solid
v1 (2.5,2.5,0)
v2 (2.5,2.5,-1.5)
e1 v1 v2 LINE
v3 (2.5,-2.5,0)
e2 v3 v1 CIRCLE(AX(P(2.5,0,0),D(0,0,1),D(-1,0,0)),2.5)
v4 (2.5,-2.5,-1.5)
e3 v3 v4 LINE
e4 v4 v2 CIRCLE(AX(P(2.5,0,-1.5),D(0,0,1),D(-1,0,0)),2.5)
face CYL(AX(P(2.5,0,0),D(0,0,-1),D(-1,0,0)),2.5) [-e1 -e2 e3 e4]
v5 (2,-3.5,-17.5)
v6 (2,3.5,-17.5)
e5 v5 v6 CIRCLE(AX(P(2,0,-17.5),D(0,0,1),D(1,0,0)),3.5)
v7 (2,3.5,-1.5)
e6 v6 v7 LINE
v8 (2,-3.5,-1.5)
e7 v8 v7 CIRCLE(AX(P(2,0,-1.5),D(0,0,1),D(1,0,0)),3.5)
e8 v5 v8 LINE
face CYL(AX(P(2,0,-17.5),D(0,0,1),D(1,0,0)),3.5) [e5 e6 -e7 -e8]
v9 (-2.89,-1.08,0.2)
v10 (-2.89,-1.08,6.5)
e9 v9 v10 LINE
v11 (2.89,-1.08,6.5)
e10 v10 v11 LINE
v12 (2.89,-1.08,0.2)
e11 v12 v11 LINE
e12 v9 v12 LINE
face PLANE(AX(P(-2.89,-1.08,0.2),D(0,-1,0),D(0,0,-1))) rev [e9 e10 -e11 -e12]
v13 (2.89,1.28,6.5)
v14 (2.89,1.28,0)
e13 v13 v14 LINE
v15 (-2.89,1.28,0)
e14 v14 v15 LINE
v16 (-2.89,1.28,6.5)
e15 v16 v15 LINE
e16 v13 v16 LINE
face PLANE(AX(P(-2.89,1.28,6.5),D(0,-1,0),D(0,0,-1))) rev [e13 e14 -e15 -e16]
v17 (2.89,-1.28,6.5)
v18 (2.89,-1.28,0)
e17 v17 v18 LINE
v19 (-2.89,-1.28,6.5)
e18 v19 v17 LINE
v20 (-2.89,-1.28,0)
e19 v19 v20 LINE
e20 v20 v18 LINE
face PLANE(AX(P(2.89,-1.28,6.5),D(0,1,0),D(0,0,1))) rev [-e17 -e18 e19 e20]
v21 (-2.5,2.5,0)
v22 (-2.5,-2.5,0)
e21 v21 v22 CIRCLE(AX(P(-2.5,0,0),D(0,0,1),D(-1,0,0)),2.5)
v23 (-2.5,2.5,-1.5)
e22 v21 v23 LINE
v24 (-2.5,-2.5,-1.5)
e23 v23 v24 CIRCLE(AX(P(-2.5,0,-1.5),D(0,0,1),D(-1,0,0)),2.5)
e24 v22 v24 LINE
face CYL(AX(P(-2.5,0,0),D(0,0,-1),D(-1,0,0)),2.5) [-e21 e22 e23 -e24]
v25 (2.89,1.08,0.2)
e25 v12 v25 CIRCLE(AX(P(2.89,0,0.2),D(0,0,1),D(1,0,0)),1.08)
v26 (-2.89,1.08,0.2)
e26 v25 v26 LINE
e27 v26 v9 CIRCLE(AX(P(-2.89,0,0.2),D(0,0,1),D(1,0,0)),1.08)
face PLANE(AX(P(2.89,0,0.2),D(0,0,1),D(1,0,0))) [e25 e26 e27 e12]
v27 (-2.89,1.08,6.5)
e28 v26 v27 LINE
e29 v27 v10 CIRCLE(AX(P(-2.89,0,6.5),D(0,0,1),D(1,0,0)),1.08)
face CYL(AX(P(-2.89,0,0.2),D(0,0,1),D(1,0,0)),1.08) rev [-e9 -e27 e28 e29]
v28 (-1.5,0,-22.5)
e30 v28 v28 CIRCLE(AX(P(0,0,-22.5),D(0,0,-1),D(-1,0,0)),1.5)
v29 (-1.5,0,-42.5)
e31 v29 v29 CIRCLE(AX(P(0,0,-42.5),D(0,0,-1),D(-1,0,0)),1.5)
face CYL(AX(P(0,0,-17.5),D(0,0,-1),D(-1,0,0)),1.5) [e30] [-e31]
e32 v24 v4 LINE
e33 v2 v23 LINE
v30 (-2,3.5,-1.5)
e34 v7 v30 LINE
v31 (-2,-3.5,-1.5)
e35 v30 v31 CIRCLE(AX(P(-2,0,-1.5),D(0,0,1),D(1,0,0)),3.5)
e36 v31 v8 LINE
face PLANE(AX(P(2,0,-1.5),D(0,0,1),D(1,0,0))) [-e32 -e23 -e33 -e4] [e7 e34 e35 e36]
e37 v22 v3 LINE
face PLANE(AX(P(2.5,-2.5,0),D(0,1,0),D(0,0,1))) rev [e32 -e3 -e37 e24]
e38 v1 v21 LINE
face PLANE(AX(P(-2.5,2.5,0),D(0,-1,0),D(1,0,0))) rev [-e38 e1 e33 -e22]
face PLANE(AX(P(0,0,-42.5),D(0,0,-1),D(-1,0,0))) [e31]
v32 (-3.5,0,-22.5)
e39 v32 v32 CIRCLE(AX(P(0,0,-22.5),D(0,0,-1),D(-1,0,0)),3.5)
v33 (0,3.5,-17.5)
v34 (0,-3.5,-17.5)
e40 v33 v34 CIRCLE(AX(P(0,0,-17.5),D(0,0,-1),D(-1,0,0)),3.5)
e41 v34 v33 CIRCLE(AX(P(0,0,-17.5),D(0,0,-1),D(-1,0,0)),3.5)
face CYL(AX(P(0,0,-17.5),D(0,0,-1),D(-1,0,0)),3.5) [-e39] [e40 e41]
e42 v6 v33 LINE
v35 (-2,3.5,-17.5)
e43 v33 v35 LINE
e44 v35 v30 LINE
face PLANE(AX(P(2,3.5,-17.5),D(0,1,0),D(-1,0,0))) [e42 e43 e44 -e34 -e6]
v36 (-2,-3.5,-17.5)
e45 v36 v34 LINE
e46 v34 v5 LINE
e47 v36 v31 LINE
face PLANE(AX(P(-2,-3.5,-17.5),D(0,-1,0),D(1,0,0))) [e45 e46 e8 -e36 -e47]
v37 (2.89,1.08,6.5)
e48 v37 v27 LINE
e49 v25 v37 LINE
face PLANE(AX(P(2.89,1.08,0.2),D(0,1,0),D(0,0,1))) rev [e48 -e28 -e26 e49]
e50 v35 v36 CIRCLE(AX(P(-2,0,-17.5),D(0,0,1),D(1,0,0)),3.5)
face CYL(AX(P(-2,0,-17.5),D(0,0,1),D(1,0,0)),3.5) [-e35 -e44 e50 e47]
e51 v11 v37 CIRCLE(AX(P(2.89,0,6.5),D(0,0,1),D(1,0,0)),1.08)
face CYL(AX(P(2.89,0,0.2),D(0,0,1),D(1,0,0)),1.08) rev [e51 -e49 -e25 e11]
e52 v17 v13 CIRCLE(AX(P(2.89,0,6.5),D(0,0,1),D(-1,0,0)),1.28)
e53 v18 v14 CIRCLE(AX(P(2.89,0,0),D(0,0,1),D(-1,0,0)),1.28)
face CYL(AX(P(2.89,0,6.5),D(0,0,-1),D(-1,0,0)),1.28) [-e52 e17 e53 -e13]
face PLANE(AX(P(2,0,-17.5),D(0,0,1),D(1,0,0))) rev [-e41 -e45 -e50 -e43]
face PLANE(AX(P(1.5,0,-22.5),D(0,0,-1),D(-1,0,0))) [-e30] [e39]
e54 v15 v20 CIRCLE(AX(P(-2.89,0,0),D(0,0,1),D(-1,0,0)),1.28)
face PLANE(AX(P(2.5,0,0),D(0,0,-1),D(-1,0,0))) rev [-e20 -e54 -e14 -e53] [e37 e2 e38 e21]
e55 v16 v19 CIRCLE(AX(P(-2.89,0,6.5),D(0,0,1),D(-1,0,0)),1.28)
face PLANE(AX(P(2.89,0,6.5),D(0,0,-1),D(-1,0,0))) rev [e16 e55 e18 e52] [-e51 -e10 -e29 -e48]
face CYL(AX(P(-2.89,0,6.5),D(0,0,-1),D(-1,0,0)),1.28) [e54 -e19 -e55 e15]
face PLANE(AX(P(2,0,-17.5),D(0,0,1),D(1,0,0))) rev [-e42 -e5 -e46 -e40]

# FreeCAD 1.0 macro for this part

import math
import FreeCAD as App
import Part
import Sketcher
Q = App.Units.Quantity


def add_polygon(sketch, points):
    """Adds a closed chain of lines whose ends are joined by coincident constraints."""
    first, n = sketch.GeometryCount, len(points)
    for a, b in zip(points, points[1:] + points[:1]):
        sketch.addGeometry(Part.LineSegment(App.Vector(*a, 0), App.Vector(*b, 0)), False)
    for i in range(n):
        sketch.addConstraint(Sketcher.Constraint("Coincident", first + i, 2, first + (i + 1) % n, 1))

doc = App.newDocument("Part")
body = doc.addObject("PartDesign::Body", "Body")

# Sketch on XY plane
sketch1 = body.newObject("Sketcher::SketchObject", "Sketch")
sketch1.AttachmentSupport = (doc.getObject("XY_Plane"), [""])
sketch1.MapMode = "FlatFace"
sketch1.AttachmentOffset = App.Placement(App.Vector(0, 0, -1.5), App.Rotation())
sketch1.addGeometry(Part.LineSegment(App.Vector(2, 3.5, 0), App.Vector(-2, 3.5, 0)), False)
sketch1.addGeometry(Part.ArcOfCircle(Part.Circle(App.Vector(-2, 0, 0), App.Vector(0, 0, 1), 3.5), math.radians(90), math.radians(270)), False)
sketch1.addGeometry(Part.LineSegment(App.Vector(-2, -3.5, 0), App.Vector(2, -3.5, 0)), False)
sketch1.addGeometry(Part.ArcOfCircle(Part.Circle(App.Vector(2, 0, 0), App.Vector(0, 0, 1), 3.5), math.radians(-90), math.radians(90)), False)
sketch1.addConstraint(Sketcher.Constraint("Tangent", 0, 2, 1, 1))
sketch1.addConstraint(Sketcher.Constraint("Tangent", 1, 2, 2, 1))
sketch1.addConstraint(Sketcher.Constraint("Tangent", 2, 2, 3, 1))
sketch1.addConstraint(Sketcher.Constraint("Tangent", 3, 2, 0, 1))
sketch1.addConstraint(Sketcher.Constraint("Horizontal", 0))
sketch1.addConstraint(Sketcher.Constraint("Horizontal", 2))
sketch1.addConstraint(Sketcher.Constraint("Symmetric", 1, 3, 3, 3, -1, 1))
sketch1.addConstraint(Sketcher.Constraint("Radius", 1, Q("3.5 mm")))
sketch1.addConstraint(Sketcher.Constraint("DistanceX", 0, 2, 0, 1, Q("4 mm")))
pad1 = body.newObject("PartDesign::Pad", "Pad")
pad1.Profile = sketch1
pad1.Length = 16
pad1.Reversed = True

# Sketch on XY plane
sketch2 = body.newObject("Sketcher::SketchObject", "Sketch001")
sketch2.AttachmentSupport = (doc.getObject("XY_Plane"), [""])
sketch2.MapMode = "FlatFace"
sketch2.AttachmentOffset = App.Placement(App.Vector(0, 0, -1.5), App.Rotation())
sketch2.addGeometry(Part.LineSegment(App.Vector(-2.5, -2.5, 0), App.Vector(2.5, -2.5, 0)), False)
sketch2.addGeometry(Part.ArcOfCircle(Part.Circle(App.Vector(2.5, 0, 0), App.Vector(0, 0, 1), 2.5), math.radians(-90), math.radians(90)), False)
sketch2.addGeometry(Part.LineSegment(App.Vector(2.5, 2.5, 0), App.Vector(-2.5, 2.5, 0)), False)
sketch2.addGeometry(Part.ArcOfCircle(Part.Circle(App.Vector(-2.5, 0, 0), App.Vector(0, 0, 1), 2.5), math.radians(90), math.radians(270)), False)
sketch2.addConstraint(Sketcher.Constraint("Tangent", 0, 2, 1, 1))
sketch2.addConstraint(Sketcher.Constraint("Tangent", 1, 2, 2, 1))
sketch2.addConstraint(Sketcher.Constraint("Tangent", 2, 2, 3, 1))
sketch2.addConstraint(Sketcher.Constraint("Tangent", 3, 2, 0, 1))
sketch2.addConstraint(Sketcher.Constraint("Horizontal", 0))
sketch2.addConstraint(Sketcher.Constraint("Horizontal", 2))
sketch2.addConstraint(Sketcher.Constraint("Symmetric", 1, 3, 3, 3, -1, 1))
sketch2.addConstraint(Sketcher.Constraint("Radius", 1, Q("2.5 mm")))
sketch2.addConstraint(Sketcher.Constraint("DistanceX", 0, 1, 0, 2, Q("5 mm")))
pad2 = body.newObject("PartDesign::Pad", "Pad001")
pad2.Profile = sketch2
pad2.Length = 1.5

# Sketch on XY plane
sketch3 = body.newObject("Sketcher::SketchObject", "Sketch002")
sketch3.AttachmentSupport = (doc.getObject("XY_Plane"), [""])
sketch3.MapMode = "FlatFace"
sketch3.addGeometry(Part.LineSegment(App.Vector(-2.9, -1.3, 0), App.Vector(2.9, -1.3, 0)), False)
sketch3.addGeometry(Part.ArcOfCircle(Part.Circle(App.Vector(2.9, 0, 0), App.Vector(0, 0, 1), 1.3), math.radians(-90), math.radians(90)), False)
sketch3.addGeometry(Part.LineSegment(App.Vector(2.9, 1.3, 0), App.Vector(-2.9, 1.3, 0)), False)
sketch3.addGeometry(Part.ArcOfCircle(Part.Circle(App.Vector(-2.9, 0, 0), App.Vector(0, 0, 1), 1.3), math.radians(90), math.radians(270)), False)
sketch3.addConstraint(Sketcher.Constraint("Tangent", 0, 2, 1, 1))
sketch3.addConstraint(Sketcher.Constraint("Tangent", 1, 2, 2, 1))
sketch3.addConstraint(Sketcher.Constraint("Tangent", 2, 2, 3, 1))
sketch3.addConstraint(Sketcher.Constraint("Tangent", 3, 2, 0, 1))
sketch3.addConstraint(Sketcher.Constraint("Horizontal", 0))
sketch3.addConstraint(Sketcher.Constraint("Horizontal", 2))
sketch3.addConstraint(Sketcher.Constraint("Symmetric", 1, 3, 3, 3, -1, 1))
sketch3.addConstraint(Sketcher.Constraint("Radius", 1, Q("1.28 mm")))
sketch3.addConstraint(Sketcher.Constraint("DistanceX", 0, 1, 0, 2, Q("5.78 mm")))
pad3 = body.newObject("PartDesign::Pad", "Pad002")
pad3.Profile = sketch3
pad3.Length = 6.5

# Sketch on XY plane
sketch4 = body.newObject("Sketcher::SketchObject", "Sketch003")
sketch4.AttachmentSupport = (doc.getObject("XY_Plane"), [""])
sketch4.MapMode = "FlatFace"
sketch4.AttachmentOffset = App.Placement(App.Vector(0, 0, 6.5), App.Rotation())
sketch4.addGeometry(Part.LineSegment(App.Vector(2.9, 1.1, 0), App.Vector(-2.9, 1.1, 0)), False)
sketch4.addGeometry(Part.ArcOfCircle(Part.Circle(App.Vector(-2.9, 0, 0), App.Vector(0, 0, 1), 1.1), math.radians(90), math.radians(270)), False)
sketch4.addGeometry(Part.LineSegment(App.Vector(-2.9, -1.1, 0), App.Vector(2.9, -1.1, 0)), False)
sketch4.addGeometry(Part.ArcOfCircle(Part.Circle(App.Vector(2.9, 0, 0), App.Vector(0, 0, 1), 1.1), math.radians(-90), math.radians(90)), False)
sketch4.addConstraint(Sketcher.Constraint("Tangent", 0, 2, 1, 1))
sketch4.addConstraint(Sketcher.Constraint("Tangent", 1, 2, 2, 1))
sketch4.addConstraint(Sketcher.Constraint("Tangent", 2, 2, 3, 1))
sketch4.addConstraint(Sketcher.Constraint("Tangent", 3, 2, 0, 1))
sketch4.addConstraint(Sketcher.Constraint("Horizontal", 0))
sketch4.addConstraint(Sketcher.Constraint("Horizontal", 2))
sketch4.addConstraint(Sketcher.Constraint("Symmetric", 1, 3, 3, 3, -1, 1))
sketch4.addConstraint(Sketcher.Constraint("Radius", 1, Q("1.08 mm")))
sketch4.addConstraint(Sketcher.Constraint("DistanceX", 0, 2, 0, 1, Q("5.78 mm")))
pocket1 = body.newObject("PartDesign::Pocket", "Pocket")
pocket1.Profile = sketch4
pocket1.Length = 6.3

# Sketch on XZ plane
sketch5 = body.newObject("Sketcher::SketchObject", "Sketch004")
sketch5.AttachmentSupport = (doc.getObject("XZ_Plane"), [""])
sketch5.MapMode = "FlatFace"
add_polygon(sketch5, [(3.5, -17.5), (0, -17.5), (0, -122.5), (1.5, -122.5), (1.5, -22.5), (3.5, -22.5)])  # lines 0-5
sketch5.addConstraint(Sketcher.Constraint("Horizontal", 0))
sketch5.addConstraint(Sketcher.Constraint("Vertical", 1))
sketch5.addConstraint(Sketcher.Constraint("Horizontal", 2))
sketch5.addConstraint(Sketcher.Constraint("Vertical", 3))
sketch5.addConstraint(Sketcher.Constraint("Horizontal", 4))
sketch5.addConstraint(Sketcher.Constraint("Vertical", 5))
sketch5.addConstraint(Sketcher.Constraint("PointOnObject", 0, 2, -2))
sketch5.addConstraint(Sketcher.Constraint("DistanceX", 4, 1, 4, 2, Q("2 mm")))
sketch5.addConstraint(Sketcher.Constraint("DistanceY", 1, 2, 1, 1, Q("105 mm")))
sketch5.addConstraint(Sketcher.Constraint("DistanceY", 3, 1, 3, 2, Q("100 mm")))
sketch5.addConstraint(Sketcher.Constraint("DistanceX", 0, 2, 0, 1, Q("3.5 mm")))
sketch5.addConstraint(Sketcher.Constraint("DistanceY", 0, 2, -1, 1, Q("17.5 mm")))
revolution = body.newObject("PartDesign::Revolution", "Revolution")
revolution.Profile = sketch5
revolution.ReferenceAxis = (sketch5, ["V_Axis"])
revolution.Angle = 360

# Sketch on XY plane
sketch6 = body.newObject("Sketcher::SketchObject", "Sketch005")
sketch6.AttachmentSupport = (doc.getObject("XY_Plane"), [""])
sketch6.MapMode = "FlatFace"
sketch6.AttachmentOffset = App.Placement(App.Vector(0, 0, -122.5), App.Rotation())
sketch6.addGeometry(Part.Circle(App.Vector(0, 0, 0), App.Vector(0, 0, 1), 1.5), False)
sketch6.addConstraint(Sketcher.Constraint("Coincident", 0, 3, -1, 1))
sketch6.addConstraint(Sketcher.Constraint("Diameter", 0, Q("3 mm")))
pocket2 = body.newObject("PartDesign::Pocket", "Pocket001")
pocket2.Profile = sketch6
pocket2.Length = 80
pocket2.Reversed = True

doc.recompute()
